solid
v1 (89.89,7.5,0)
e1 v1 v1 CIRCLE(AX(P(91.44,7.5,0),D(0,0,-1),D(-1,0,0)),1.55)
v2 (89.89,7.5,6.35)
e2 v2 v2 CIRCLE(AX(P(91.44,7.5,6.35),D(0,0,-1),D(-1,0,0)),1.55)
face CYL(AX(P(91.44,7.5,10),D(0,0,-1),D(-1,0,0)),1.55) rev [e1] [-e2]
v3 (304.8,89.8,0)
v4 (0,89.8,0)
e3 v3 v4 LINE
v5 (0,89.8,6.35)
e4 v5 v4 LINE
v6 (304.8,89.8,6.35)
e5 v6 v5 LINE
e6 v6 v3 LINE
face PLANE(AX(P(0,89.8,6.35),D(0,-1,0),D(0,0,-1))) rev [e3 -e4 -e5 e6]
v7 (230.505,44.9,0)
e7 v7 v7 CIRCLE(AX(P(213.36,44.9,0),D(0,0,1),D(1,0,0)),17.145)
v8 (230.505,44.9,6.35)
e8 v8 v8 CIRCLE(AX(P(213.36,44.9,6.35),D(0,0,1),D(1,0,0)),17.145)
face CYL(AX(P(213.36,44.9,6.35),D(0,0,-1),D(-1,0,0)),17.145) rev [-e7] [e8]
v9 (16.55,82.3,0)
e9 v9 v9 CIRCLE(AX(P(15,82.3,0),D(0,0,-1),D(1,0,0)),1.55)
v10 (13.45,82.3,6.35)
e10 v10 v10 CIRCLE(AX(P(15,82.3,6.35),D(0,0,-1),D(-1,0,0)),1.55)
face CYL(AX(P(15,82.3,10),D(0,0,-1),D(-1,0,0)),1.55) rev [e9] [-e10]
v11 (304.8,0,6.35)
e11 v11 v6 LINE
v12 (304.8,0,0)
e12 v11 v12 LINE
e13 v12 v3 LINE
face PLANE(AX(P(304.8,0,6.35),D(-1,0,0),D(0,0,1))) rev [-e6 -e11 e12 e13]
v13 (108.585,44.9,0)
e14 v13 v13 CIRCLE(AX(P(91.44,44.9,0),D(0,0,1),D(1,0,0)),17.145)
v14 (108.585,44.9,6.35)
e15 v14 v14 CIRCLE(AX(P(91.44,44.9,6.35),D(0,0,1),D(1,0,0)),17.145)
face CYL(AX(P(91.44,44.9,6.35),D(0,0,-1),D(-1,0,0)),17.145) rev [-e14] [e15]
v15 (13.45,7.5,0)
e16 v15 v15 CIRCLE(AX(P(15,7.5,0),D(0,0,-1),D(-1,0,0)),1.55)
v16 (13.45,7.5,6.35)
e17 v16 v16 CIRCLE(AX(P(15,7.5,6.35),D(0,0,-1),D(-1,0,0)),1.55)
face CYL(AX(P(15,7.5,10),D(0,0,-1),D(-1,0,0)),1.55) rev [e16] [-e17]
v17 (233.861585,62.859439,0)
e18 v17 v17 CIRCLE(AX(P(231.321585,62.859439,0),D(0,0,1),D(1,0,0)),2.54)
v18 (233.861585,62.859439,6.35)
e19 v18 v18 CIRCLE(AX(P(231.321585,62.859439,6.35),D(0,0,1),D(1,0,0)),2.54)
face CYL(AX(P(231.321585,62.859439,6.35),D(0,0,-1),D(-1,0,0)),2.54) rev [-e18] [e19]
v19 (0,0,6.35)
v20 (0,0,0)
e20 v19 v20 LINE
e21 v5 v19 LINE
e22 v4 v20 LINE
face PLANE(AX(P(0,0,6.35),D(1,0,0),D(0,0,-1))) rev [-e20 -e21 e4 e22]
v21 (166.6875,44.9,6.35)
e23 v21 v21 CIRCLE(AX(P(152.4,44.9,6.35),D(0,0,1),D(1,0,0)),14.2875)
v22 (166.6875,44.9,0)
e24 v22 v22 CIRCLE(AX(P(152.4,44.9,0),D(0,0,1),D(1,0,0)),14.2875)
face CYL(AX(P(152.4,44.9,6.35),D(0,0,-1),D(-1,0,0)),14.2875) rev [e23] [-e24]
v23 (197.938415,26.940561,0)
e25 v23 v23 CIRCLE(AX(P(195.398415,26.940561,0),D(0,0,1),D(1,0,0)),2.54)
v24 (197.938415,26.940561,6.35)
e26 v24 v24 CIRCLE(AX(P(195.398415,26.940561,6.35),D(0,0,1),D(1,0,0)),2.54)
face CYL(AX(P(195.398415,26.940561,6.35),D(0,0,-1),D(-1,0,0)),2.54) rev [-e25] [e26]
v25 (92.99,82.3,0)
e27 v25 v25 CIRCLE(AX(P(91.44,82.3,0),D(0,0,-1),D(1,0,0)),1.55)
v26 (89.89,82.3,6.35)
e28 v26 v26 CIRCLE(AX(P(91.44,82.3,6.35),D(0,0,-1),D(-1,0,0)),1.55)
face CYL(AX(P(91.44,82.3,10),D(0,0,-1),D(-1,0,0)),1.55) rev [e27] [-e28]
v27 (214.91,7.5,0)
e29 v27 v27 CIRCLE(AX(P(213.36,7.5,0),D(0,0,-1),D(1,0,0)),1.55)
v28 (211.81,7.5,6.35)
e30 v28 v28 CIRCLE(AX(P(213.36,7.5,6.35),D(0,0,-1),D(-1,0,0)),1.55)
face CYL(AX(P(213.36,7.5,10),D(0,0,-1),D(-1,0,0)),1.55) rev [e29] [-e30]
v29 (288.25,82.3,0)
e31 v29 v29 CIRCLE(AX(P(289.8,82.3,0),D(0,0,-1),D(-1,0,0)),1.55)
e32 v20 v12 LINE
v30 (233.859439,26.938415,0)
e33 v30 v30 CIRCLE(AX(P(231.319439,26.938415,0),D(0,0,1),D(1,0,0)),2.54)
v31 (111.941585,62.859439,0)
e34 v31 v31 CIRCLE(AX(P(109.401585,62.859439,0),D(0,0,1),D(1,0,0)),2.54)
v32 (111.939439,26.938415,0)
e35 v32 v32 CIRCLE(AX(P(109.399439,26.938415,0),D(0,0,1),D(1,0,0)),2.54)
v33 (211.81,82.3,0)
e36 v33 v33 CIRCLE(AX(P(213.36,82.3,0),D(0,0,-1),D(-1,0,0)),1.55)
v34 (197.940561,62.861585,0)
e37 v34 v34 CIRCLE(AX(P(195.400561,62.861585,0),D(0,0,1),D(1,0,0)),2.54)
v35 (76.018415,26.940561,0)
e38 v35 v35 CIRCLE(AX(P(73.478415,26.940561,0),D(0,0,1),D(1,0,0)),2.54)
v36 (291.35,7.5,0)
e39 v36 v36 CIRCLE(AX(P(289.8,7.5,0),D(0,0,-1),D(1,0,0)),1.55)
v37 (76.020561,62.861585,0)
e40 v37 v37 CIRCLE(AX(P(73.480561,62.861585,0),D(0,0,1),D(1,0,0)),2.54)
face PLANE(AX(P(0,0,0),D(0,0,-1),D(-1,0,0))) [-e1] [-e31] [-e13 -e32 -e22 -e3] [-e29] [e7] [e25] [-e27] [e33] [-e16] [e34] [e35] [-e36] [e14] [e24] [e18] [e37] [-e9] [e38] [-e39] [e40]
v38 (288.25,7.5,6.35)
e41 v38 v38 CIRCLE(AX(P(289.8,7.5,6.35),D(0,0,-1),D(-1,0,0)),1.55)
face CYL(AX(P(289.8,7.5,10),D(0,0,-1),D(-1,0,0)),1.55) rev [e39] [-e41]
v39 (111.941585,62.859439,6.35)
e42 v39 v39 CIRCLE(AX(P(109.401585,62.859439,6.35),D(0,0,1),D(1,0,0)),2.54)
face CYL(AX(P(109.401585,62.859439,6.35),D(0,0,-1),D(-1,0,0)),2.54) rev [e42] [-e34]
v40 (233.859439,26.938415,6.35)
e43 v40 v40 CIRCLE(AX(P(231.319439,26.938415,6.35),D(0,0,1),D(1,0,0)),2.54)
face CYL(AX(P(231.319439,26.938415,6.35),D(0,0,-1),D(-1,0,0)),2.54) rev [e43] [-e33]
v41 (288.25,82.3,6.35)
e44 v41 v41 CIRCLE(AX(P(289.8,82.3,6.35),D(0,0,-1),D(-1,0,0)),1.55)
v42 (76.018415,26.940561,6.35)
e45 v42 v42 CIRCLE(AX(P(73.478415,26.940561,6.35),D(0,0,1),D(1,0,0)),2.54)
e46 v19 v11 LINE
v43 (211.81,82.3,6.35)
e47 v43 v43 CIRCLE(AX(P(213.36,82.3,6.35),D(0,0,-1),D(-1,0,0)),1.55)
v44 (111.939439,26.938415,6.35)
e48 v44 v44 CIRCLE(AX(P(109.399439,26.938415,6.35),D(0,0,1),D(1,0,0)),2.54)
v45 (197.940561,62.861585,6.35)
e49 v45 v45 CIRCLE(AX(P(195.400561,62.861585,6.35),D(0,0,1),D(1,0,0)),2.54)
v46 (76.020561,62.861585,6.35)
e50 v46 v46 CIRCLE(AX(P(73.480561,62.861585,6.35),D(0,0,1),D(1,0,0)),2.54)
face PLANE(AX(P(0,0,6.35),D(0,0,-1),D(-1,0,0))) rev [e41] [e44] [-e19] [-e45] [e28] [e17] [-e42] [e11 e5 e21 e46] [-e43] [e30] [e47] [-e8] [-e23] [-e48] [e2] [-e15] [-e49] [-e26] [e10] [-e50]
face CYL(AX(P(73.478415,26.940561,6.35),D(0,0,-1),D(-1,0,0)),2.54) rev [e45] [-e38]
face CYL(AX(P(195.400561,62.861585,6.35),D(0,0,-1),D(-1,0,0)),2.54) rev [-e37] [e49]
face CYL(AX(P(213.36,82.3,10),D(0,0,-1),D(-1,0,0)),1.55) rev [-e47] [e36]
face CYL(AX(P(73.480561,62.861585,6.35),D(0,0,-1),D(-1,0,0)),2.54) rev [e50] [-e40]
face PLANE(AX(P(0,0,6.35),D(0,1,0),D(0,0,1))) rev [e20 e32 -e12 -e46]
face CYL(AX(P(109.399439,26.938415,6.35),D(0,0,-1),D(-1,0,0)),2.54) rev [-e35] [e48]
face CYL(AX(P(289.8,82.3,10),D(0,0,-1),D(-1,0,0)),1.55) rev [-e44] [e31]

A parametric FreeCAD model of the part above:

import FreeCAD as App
import Part
import Sketcher
Q = App.Units.Quantity

doc = App.newDocument("Part")
body = doc.addObject("PartDesign::Body", "Body")

sketch1 = doc.addObject("Sketcher::SketchObject", "Sketch")
body.addObject(sketch1)
sketch1.AttachmentSupport = (doc.XY_Plane, [""])
sketch1.MapMode = "FlatFace"
sketch1.addGeometry([
    Part.LineSegment(App.Vector(0, 89.8, 0), App.Vector(0, 0, 0)),
    Part.LineSegment(App.Vector(0, 0, 0), App.Vector(304.8, 0, 0)),
    Part.LineSegment(App.Vector(304.8, 0, 0), App.Vector(304.8, 89.8, 0)),
    Part.LineSegment(App.Vector(304.8, 89.8, 0), App.Vector(0, 89.8, 0)),
    Part.Circle(App.Vector(73.478415, 26.940561, 0), App.Vector(0, 0, 1), 2.54),
    Part.Circle(App.Vector(109.399439, 26.938415, 0), App.Vector(0, 0, 1), 2.54),
    Part.Circle(App.Vector(91.44, 44.9, 0), App.Vector(0, 0, 1), 17.145),
    Part.Circle(App.Vector(195.398415, 26.940561, 0), App.Vector(0, 0, 1), 2.54),
    Part.Circle(App.Vector(231.319439, 26.938415, 0), App.Vector(0, 0, 1), 2.54),
    Part.Circle(App.Vector(152.4, 44.9, 0), App.Vector(0, 0, 1), 14.2875),
    Part.Circle(App.Vector(213.36, 44.9, 0), App.Vector(0, 0, 1), 17.145),
    Part.Circle(App.Vector(73.480561, 62.861585, 0), App.Vector(0, 0, 1), 2.54),
    Part.Circle(App.Vector(109.401585, 62.859439, 0), App.Vector(0, 0, 1), 2.54),
    Part.Circle(App.Vector(195.400561, 62.861585, 0), App.Vector(0, 0, 1), 2.54),
    Part.Circle(App.Vector(231.321585, 62.859439, 0), App.Vector(0, 0, 1), 2.54),
], False)
sketch1.addConstraint([
    Sketcher.Constraint("Coincident", 0, 2, 1, 1),
    Sketcher.Constraint("Coincident", 1, 2, 2, 1),
    Sketcher.Constraint("Coincident", 2, 2, 3, 1),
    Sketcher.Constraint("Coincident", 3, 2, 0, 1),
    Sketcher.Constraint("Vertical", 0),
    Sketcher.Constraint("Horizontal", 1),
    Sketcher.Constraint("Vertical", 2),
    Sketcher.Constraint("Horizontal", 3),
    Sketcher.Constraint("Coincident", 0, 2, -1, 1),
    Sketcher.Constraint("Equal", 4, 5),
    Sketcher.Constraint("Equal", 5, 7),
    Sketcher.Constraint("Equal", 7, 8),
    Sketcher.Constraint("Equal", 6, 10),
    Sketcher.Constraint("Equal", 8, 11),
    Sketcher.Constraint("Equal", 11, 12),
    Sketcher.Constraint("Equal", 12, 13),
    Sketcher.Constraint("Equal", 13, 14),
    Sketcher.Constraint("Horizontal", 4, 3, 7, 3),
    Sketcher.Constraint("Horizontal", 5, 3, 8, 3),
    Sketcher.Constraint("Horizontal", 6, 3, 9, 3),
    Sketcher.Constraint("Horizontal", 9, 3, 10, 3),
    Sketcher.Constraint("Horizontal", 11, 3, 13, 3),
    Sketcher.Constraint("Horizontal", 12, 3, 14, 3),
    Sketcher.Constraint("Diameter", 4, Q("0.2 in")),
    Sketcher.Constraint("Diameter", 6, Q("1.35 in")),
    Sketcher.Constraint("DistanceX", 1, 1, 1, 2, Q("12 in")),
    Sketcher.Constraint("Diameter", 9, Q("1.125 in")),
    Sketcher.Constraint("DistanceX", -1, 1, 9, 3, Q("6 in")),
    Sketcher.Constraint("DistanceX", -1, 1, 6, 3, Q("3.6 in")),
    Sketcher.Constraint("DistanceX", -1, 1, 10, 3, Q("8.4 in")),
    Sketcher.Constraint("DistanceX", 4, 3, 7, 3, Q("4.8 in")),
    Sketcher.Constraint("DistanceX", 5, 3, 8, 3, Q("4.8 in")),
    Sketcher.Constraint("DistanceY", 0, 2, 0, 1, 89.8),
    Sketcher.Constraint("DistanceY", -1, 1, 6, 3, 44.9),
    Sketcher.Constraint("DistanceY", -1, 1, 4, 3, 26.940561),
    Sketcher.Constraint("DistanceX", -1, 1, 5, 3, 109.399439),
    Sketcher.Constraint("DistanceX", -1, 1, 11, 3, 73.480561),
    Sketcher.Constraint("DistanceY", -1, 1, 12, 3, 62.859439),
    Sketcher.Constraint("DistanceX", -1, 1, 13, 3, 195.400561),
    Sketcher.Constraint("DistanceY", 5, 3, 11, 3, 35.923171),
    Sketcher.Constraint("DistanceX", 4, 3, 12, 3, 35.923171),
    Sketcher.Constraint("DistanceX", 7, 3, 14, 3, 35.923171),
    Sketcher.Constraint("DistanceX", -1, 1, 4, 3, 73.478415),
    Sketcher.Constraint("DistanceY", -1, 1, 5, 3, 26.938415),
])
pad1 = doc.addObject("PartDesign::Pad", "Pad")
body.addObject(pad1)
pad1.Profile = sketch1
pad1.Length = Q("0.25 in")

sketch2 = doc.addObject("Sketcher::SketchObject", "Sketch001")
body.addObject(sketch2)
sketch2.AttachmentSupport = (doc.XY_Plane, [""])
sketch2.MapMode = "FlatFace"
sketch2.addGeometry([
    Part.Circle(App.Vector(289.8, 82.3, 0), App.Vector(0, 0, 1), 1.55),
    Part.Circle(App.Vector(213.36, 82.3, 0), App.Vector(0, 0, 1), 1.55),
    Part.Circle(App.Vector(91.44, 82.3, 0), App.Vector(0, 0, 1), 1.55),
    Part.Circle(App.Vector(15, 82.3, 0), App.Vector(0, 0, 1), 1.55),
    Part.Circle(App.Vector(15, 7.5, 0), App.Vector(0, 0, 1), 1.55),
    Part.Circle(App.Vector(91.44, 7.5, 0), App.Vector(0, 0, 1), 1.55),
    Part.Circle(App.Vector(213.36, 7.5, 0), App.Vector(0, 0, 1), 1.55),
    Part.Circle(App.Vector(289.8, 7.5, 0), App.Vector(0, 0, 1), 1.55),
], False)
sketch2.addConstraint([
    Sketcher.Constraint("Equal", 0, 1),
    Sketcher.Constraint("Equal", 1, 2),
    Sketcher.Constraint("Equal", 2, 3),
    Sketcher.Constraint("Equal", 3, 4),
    Sketcher.Constraint("Equal", 4, 5),
    Sketcher.Constraint("Equal", 5, 6),
    Sketcher.Constraint("Equal", 6, 7),
    Sketcher.Constraint("Horizontal", 0, 3, 1, 3),
    Sketcher.Constraint("Horizontal", 1, 3, 2, 3),
    Sketcher.Constraint("Horizontal", 2, 3, 3, 3),
    Sketcher.Constraint("Horizontal", 4, 3, 5, 3),
    Sketcher.Constraint("Horizontal", 5, 3, 6, 3),
    Sketcher.Constraint("Horizontal", 6, 3, 7, 3),
    Sketcher.Constraint("Vertical", 3, 3, 4, 3),
    Sketcher.Constraint("Vertical", 2, 3, 5, 3),
    Sketcher.Constraint("Vertical", 1, 3, 6, 3),
    Sketcher.Constraint("Vertical", 0, 3, 7, 3),
    Sketcher.Constraint("DistanceX", -1, 1, 1, 3, Q("8.4 in")),
    Sketcher.Constraint("DistanceX", -1, 1, 2, 3, Q("3.6 in")),
    Sketcher.Constraint("Diameter", 0, 3.1),
    Sketcher.Constraint("DistanceX", -1, 1, 0, 3, 289.8),
    Sketcher.Constraint("DistanceY", -1, 1, 0, 3, 82.3),
    Sketcher.Constraint("DistanceX", -1, 1, 3, 3, 15.0),
    Sketcher.Constraint("DistanceY", -1, 1, 4, 3, 7.5),
])
pocket1 = doc.addObject("PartDesign::Pocket", "Pocket")
body.addObject(pocket1)
pocket1.Profile = sketch2
pocket1.Length = 10
pocket1.Reversed = True

doc.recompute()
